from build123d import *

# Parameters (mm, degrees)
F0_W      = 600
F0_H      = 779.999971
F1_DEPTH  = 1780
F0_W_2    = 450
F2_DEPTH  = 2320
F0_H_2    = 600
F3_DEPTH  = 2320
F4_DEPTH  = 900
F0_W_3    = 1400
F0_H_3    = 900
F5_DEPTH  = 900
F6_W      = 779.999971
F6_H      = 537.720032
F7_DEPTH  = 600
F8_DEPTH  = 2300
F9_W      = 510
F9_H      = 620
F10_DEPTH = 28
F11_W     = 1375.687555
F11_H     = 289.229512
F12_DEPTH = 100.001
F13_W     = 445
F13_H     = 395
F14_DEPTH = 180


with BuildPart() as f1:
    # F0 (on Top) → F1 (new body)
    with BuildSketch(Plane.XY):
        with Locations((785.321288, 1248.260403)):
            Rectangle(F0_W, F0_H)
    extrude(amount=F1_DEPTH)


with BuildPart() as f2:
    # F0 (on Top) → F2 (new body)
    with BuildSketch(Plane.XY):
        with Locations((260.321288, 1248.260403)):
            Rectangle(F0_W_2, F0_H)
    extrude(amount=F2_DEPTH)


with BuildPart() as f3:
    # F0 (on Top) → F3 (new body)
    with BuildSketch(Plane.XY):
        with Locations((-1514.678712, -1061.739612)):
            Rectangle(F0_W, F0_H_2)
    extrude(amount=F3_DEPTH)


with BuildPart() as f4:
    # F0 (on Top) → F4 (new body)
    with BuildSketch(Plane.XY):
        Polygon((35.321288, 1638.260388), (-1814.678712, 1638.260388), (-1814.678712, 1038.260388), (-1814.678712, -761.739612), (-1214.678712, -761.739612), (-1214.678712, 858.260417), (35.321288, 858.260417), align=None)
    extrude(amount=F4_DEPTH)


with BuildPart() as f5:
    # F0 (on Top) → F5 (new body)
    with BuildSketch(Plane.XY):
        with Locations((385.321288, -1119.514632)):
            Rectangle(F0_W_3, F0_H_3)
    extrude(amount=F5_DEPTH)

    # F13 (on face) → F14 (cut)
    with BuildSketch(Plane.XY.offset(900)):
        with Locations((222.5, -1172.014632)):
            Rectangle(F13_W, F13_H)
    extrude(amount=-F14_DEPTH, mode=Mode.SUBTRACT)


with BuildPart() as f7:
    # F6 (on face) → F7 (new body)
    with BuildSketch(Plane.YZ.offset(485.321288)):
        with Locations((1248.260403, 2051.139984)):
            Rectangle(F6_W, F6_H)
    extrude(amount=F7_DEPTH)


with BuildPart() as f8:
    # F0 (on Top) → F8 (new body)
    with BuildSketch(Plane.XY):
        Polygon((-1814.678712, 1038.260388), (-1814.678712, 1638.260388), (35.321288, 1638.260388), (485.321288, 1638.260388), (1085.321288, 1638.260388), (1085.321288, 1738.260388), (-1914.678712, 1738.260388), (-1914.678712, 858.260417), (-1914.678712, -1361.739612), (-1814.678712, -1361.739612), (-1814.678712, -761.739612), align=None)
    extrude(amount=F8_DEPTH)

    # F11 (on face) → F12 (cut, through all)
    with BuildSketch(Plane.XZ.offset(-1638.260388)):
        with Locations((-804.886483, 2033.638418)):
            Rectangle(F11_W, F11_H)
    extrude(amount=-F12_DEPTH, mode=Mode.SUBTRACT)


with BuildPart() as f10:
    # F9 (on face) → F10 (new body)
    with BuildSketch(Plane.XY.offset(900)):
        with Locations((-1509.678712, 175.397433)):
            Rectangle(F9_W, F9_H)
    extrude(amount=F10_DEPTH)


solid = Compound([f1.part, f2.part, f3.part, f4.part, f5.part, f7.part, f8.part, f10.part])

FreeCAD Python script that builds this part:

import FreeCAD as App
import Part
import Sketcher
from FreeCAD import Vector
Q = App.Units.Quantity

doc = App.newDocument("Part")
body = doc.addObject("PartDesign::Body", "Body")

sketch1 = doc.addObject("Sketcher::SketchObject", "Sketch")
body.addObject(sketch1)
sketch1.AttachmentSupport = (doc.XY_Plane, [""])
sketch1.MapMode = "FlatFace"
sketch1.addGeometry(Part.LineSegment(Vector(485, 1638, 0), Vector(485, 858, 0)), False)
sketch1.addGeometry(Part.LineSegment(Vector(485, 858, 0), Vector(1085, 858, 0)), False)
sketch1.addGeometry(Part.LineSegment(Vector(1085, 858, 0), Vector(1085, 1638, 0)), False)
sketch1.addGeometry(Part.LineSegment(Vector(1085, 1638, 0), Vector(485, 1638, 0)), False)
sketch1.addConstraint(Sketcher.Constraint("Coincident", 0, 2, 1, 1))
sketch1.addConstraint(Sketcher.Constraint("Coincident", 1, 2, 2, 1))
sketch1.addConstraint(Sketcher.Constraint("Coincident", 2, 2, 3, 1))
sketch1.addConstraint(Sketcher.Constraint("Coincident", 3, 2, 0, 1))
sketch1.addConstraint(Sketcher.Constraint("Vertical", 0))
sketch1.addConstraint(Sketcher.Constraint("Horizontal", 1))
sketch1.addConstraint(Sketcher.Constraint("Vertical", 2))
sketch1.addConstraint(Sketcher.Constraint("Horizontal", 3))
sketch1.addConstraint(Sketcher.Constraint("DistanceX", 1, 1, 1, 2, Q("600 mm")))
sketch1.addConstraint(Sketcher.Constraint("DistanceY", 0, 2, 0, 1, Q("779.999971 mm")))
sketch1.addConstraint(Sketcher.Constraint("DistanceX", -1, 1, 0, 2, Q("485.321288 mm")))
sketch1.addConstraint(Sketcher.Constraint("DistanceY", -1, 1, 2, 2, Q("1638.260389 mm")))
pad1 = doc.addObject("PartDesign::Pad", "Pad")
body.addObject(pad1)
pad1.Profile = sketch1
pad1.Length = 1780
body2 = doc.addObject("PartDesign::Body", "Body001")

sketch2 = doc.addObject("Sketcher::SketchObject", "Sketch001")
body2.addObject(sketch2)
sketch2.AttachmentSupport = (doc.getObject("XY_Plane001"), [""])
sketch2.MapMode = "FlatFace"
sketch2.addGeometry(Part.LineSegment(Vector(35, 1638, 0), Vector(35, 858, 0)), False)
sketch2.addGeometry(Part.LineSegment(Vector(35, 858, 0), Vector(485, 858, 0)), False)
sketch2.addGeometry(Part.LineSegment(Vector(485, 858, 0), Vector(485, 1638, 0)), False)
sketch2.addGeometry(Part.LineSegment(Vector(485, 1638, 0), Vector(35, 1638, 0)), False)
sketch2.addConstraint(Sketcher.Constraint("Coincident", 0, 2, 1, 1))
sketch2.addConstraint(Sketcher.Constraint("Coincident", 1, 2, 2, 1))
sketch2.addConstraint(Sketcher.Constraint("Coincident", 2, 2, 3, 1))
sketch2.addConstraint(Sketcher.Constraint("Coincident", 3, 2, 0, 1))
sketch2.addConstraint(Sketcher.Constraint("Vertical", 0))
sketch2.addConstraint(Sketcher.Constraint("Horizontal", 1))
sketch2.addConstraint(Sketcher.Constraint("Vertical", 2))
sketch2.addConstraint(Sketcher.Constraint("Horizontal", 3))
sketch2.addConstraint(Sketcher.Constraint("DistanceX", 1, 1, 1, 2, Q("450 mm")))
sketch2.addConstraint(Sketcher.Constraint("DistanceY", 0, 2, 0, 1, Q("779.999971 mm")))
sketch2.addConstraint(Sketcher.Constraint("DistanceX", -1, 1, 0, 2, Q("35.321288 mm")))
sketch2.addConstraint(Sketcher.Constraint("DistanceY", -1, 1, 2, 2, Q("1638.260389 mm")))
pad2 = doc.addObject("PartDesign::Pad", "Pad001")
body2.addObject(pad2)
pad2.Profile = sketch2
pad2.Length = 2320
body3 = doc.addObject("PartDesign::Body", "Body002")

sketch3 = doc.addObject("Sketcher::SketchObject", "Sketch002")
body3.addObject(sketch3)
sketch3.AttachmentSupport = (doc.getObject("XY_Plane002"), [""])
sketch3.MapMode = "FlatFace"
sketch3.addGeometry(Part.LineSegment(Vector(-1815, -762, 0), Vector(-1815, -1362, 0)), False)
sketch3.addGeometry(Part.LineSegment(Vector(-1815, -1362, 0), Vector(-1215, -1362, 0)), False)
sketch3.addGeometry(Part.LineSegment(Vector(-1215, -1362, 0), Vector(-1215, -762, 0)), False)
sketch3.addGeometry(Part.LineSegment(Vector(-1215, -762, 0), Vector(-1815, -762, 0)), False)
sketch3.addConstraint(Sketcher.Constraint("Coincident", 0, 2, 1, 1))
sketch3.addConstraint(Sketcher.Constraint("Coincident", 1, 2, 2, 1))
sketch3.addConstraint(Sketcher.Constraint("Coincident", 2, 2, 3, 1))
sketch3.addConstraint(Sketcher.Constraint("Coincident", 3, 2, 0, 1))
sketch3.addConstraint(Sketcher.Constraint("Vertical", 0))
sketch3.addConstraint(Sketcher.Constraint("Horizontal", 1))
sketch3.addConstraint(Sketcher.Constraint("Vertical", 2))
sketch3.addConstraint(Sketcher.Constraint("Horizontal", 3))
sketch3.addConstraint(Sketcher.Constraint("Equal", 3, 0))
sketch3.addConstraint(Sketcher.Constraint("DistanceX", 1, 1, 1, 2, Q("600 mm")))
sketch3.addConstraint(Sketcher.Constraint("DistanceX", 0, 2, -1, 1, Q("1814.678712 mm")))
sketch3.addConstraint(Sketcher.Constraint("DistanceY", 0, 2, -1, 1, Q("1361.739612 mm")))
pad3 = doc.addObject("PartDesign::Pad", "Pad002")
body3.addObject(pad3)
pad3.Profile = sketch3
pad3.Length = 2320
body4 = doc.addObject("PartDesign::Body", "Body003")

sketch4 = doc.addObject("Sketcher::SketchObject", "Sketch003")
body4.addObject(sketch4)
sketch4.AttachmentSupport = (doc.getObject("XY_Plane003"), [""])
sketch4.MapMode = "FlatFace"
sketch4.addGeometry(Part.LineSegment(Vector(35, 1638, 0), Vector(-1815, 1638, 0)), False)
sketch4.addGeometry(Part.LineSegment(Vector(-1815, 1638, 0), Vector(-1815, -762, 0)), False)
sketch4.addGeometry(Part.LineSegment(Vector(-1815, -762, 0), Vector(-1215, -762, 0)), False)
sketch4.addGeometry(Part.LineSegment(Vector(-1215, -762, 0), Vector(-1215, 858, 0)), False)
sketch4.addGeometry(Part.LineSegment(Vector(-1215, 858, 0), Vector(35, 858, 0)), False)
sketch4.addGeometry(Part.LineSegment(Vector(35, 858, 0), Vector(35, 1638, 0)), False)
sketch4.addConstraint(Sketcher.Constraint("Coincident", 0, 2, 1, 1))
sketch4.addConstraint(Sketcher.Constraint("Coincident", 1, 2, 2, 1))
sketch4.addConstraint(Sketcher.Constraint("Coincident", 2, 2, 3, 1))
sketch4.addConstraint(Sketcher.Constraint("Coincident", 3, 2, 4, 1))
sketch4.addConstraint(Sketcher.Constraint("Coincident", 4, 2, 5, 1))
sketch4.addConstraint(Sketcher.Constraint("Coincident", 5, 2, 0, 1))
sketch4.addConstraint(Sketcher.Constraint("Horizontal", 0))
sketch4.addConstraint(Sketcher.Constraint("Vertical", 1))
sketch4.addConstraint(Sketcher.Constraint("Horizontal", 2))
sketch4.addConstraint(Sketcher.Constraint("Vertical", 3))
sketch4.addConstraint(Sketcher.Constraint("Horizontal", 4))
sketch4.addConstraint(Sketcher.Constraint("Vertical", 5))
sketch4.addConstraint(Sketcher.Constraint("DistanceX", 0, 2, 0, 1, Q("1850 mm")))
sketch4.addConstraint(Sketcher.Constraint("DistanceX", 2, 1, 2, 2, Q("600 mm")))
sketch4.addConstraint(Sketcher.Constraint("DistanceY", 1, 2, 1, 1, Q("2400 mm")))
sketch4.addConstraint(Sketcher.Constraint("DistanceY", 3, 1, 3, 2, Q("1620.000029 mm")))
sketch4.addConstraint(Sketcher.Constraint("DistanceX", 0, 2, -1, 1, Q("1814.678712 mm")))
sketch4.addConstraint(Sketcher.Constraint("DistanceY", -1, 1, 0, 2, Q("1638.260388 mm")))
pad4 = doc.addObject("PartDesign::Pad", "Pad003")
body4.addObject(pad4)
pad4.Profile = sketch4
pad4.Length = 900
body5 = doc.addObject("PartDesign::Body", "Body004")

sketch5 = doc.addObject("Sketcher::SketchObject", "Sketch004")
body5.addObject(sketch5)
sketch5.AttachmentSupport = (doc.getObject("XY_Plane004"), [""])
sketch5.MapMode = "FlatFace"
sketch5.addGeometry(Part.LineSegment(Vector(-315, -670, 0), Vector(-315, -1570, 0)), False)
sketch5.addGeometry(Part.LineSegment(Vector(-315, -1570, 0), Vector(1085, -1570, 0)), False)
sketch5.addGeometry(Part.LineSegment(Vector(1085, -1570, 0), Vector(1085, -670, 0)), False)
sketch5.addGeometry(Part.LineSegment(Vector(1085, -670, 0), Vector(-315, -670, 0)), False)
sketch5.addConstraint(Sketcher.Constraint("Coincident", 0, 2, 1, 1))
sketch5.addConstraint(Sketcher.Constraint("Coincident", 1, 2, 2, 1))
sketch5.addConstraint(Sketcher.Constraint("Coincident", 2, 2, 3, 1))
sketch5.addConstraint(Sketcher.Constraint("Coincident", 3, 2, 0, 1))
sketch5.addConstraint(Sketcher.Constraint("Vertical", 0))
sketch5.addConstraint(Sketcher.Constraint("Horizontal", 1))
sketch5.addConstraint(Sketcher.Constraint("Vertical", 2))
sketch5.addConstraint(Sketcher.Constraint("Horizontal", 3))
sketch5.addConstraint(Sketcher.Constraint("DistanceX", 1, 1, 1, 2, Q("1400 mm")))
sketch5.addConstraint(Sketcher.Constraint("DistanceY", 0, 2, 0, 1, Q("900 mm")))
sketch5.addConstraint(Sketcher.Constraint("DistanceX", 0, 2, -1, 1, Q("314.678712 mm")))
sketch5.addConstraint(Sketcher.Constraint("DistanceY", 0, 2, -1, 1, Q("1569.514632 mm")))
pad5 = doc.addObject("PartDesign::Pad", "Pad004")
body5.addObject(pad5)
pad5.Profile = sketch5
pad5.Length = 900

sketch6 = doc.addObject("Sketcher::SketchObject", "Sketch005")
body5.addObject(sketch6)
sketch6.AttachmentSupport = (doc.getObject("XY_Plane004"), [""])
sketch6.MapMode = "FlatFace"
sketch6.AttachmentOffset = App.Placement(Vector(0, 0, 900), App.Rotation())
sketch6.addGeometry(Part.LineSegment(Vector(0, -975, 0), Vector(0, -1370, 0)), False)
sketch6.addGeometry(Part.LineSegment(Vector(0, -1370, 0), Vector(445, -1370, 0)), False)
sketch6.addGeometry(Part.LineSegment(Vector(445, -1370, 0), Vector(445, -975, 0)), False)
sketch6.addGeometry(Part.LineSegment(Vector(445, -975, 0), Vector(0, -975, 0)), False)
sketch6.addConstraint(Sketcher.Constraint("Coincident", 0, 2, 1, 1))
sketch6.addConstraint(Sketcher.Constraint("Coincident", 1, 2, 2, 1))
sketch6.addConstraint(Sketcher.Constraint("Coincident", 2, 2, 3, 1))
sketch6.addConstraint(Sketcher.Constraint("Coincident", 3, 2, 0, 1))
sketch6.addConstraint(Sketcher.Constraint("Vertical", 0))
sketch6.addConstraint(Sketcher.Constraint("Horizontal", 1))
sketch6.addConstraint(Sketcher.Constraint("Vertical", 2))
sketch6.addConstraint(Sketcher.Constraint("Horizontal", 3))
sketch6.addConstraint(Sketcher.Constraint("PointOnObject", 0, 2, -2))
sketch6.addConstraint(Sketcher.Constraint("DistanceX", 1, 1, 1, 2, Q("445 mm")))
sketch6.addConstraint(Sketcher.Constraint("DistanceY", 0, 2, 0, 1, Q("395 mm")))
sketch6.addConstraint(Sketcher.Constraint("DistanceY", 0, 2, -1, 1, Q("1369.514632 mm")))
pocket1 = doc.addObject("PartDesign::Pocket", "Pocket")
body5.addObject(pocket1)
pocket1.Profile = sketch6
pocket1.Length = 180
body6 = doc.addObject("PartDesign::Body", "Body005")

sketch7 = doc.addObject("Sketcher::SketchObject", "Sketch006")
body6.addObject(sketch7)
sketch7.AttachmentSupport = (doc.getObject("YZ_Plane005"), [""])
sketch7.MapMode = "FlatFace"
sketch7.AttachmentOffset = App.Placement(Vector(0, 0, 485.321288), App.Rotation())
sketch7.addGeometry(Part.LineSegment(Vector(858, 2320, 0), Vector(858, 1782, 0)), False)
sketch7.addGeometry(Part.LineSegment(Vector(858, 1782, 0), Vector(1638, 1782, 0)), False)
sketch7.addGeometry(Part.LineSegment(Vector(1638, 1782, 0), Vector(1638, 2320, 0)), False)
sketch7.addGeometry(Part.LineSegment(Vector(1638, 2320, 0), Vector(858, 2320, 0)), False)
sketch7.addConstraint(Sketcher.Constraint("Coincident", 0, 2, 1, 1))
sketch7.addConstraint(Sketcher.Constraint("Coincident", 1, 2, 2, 1))
sketch7.addConstraint(Sketcher.Constraint("Coincident", 2, 2, 3, 1))
sketch7.addConstraint(Sketcher.Constraint("Coincident", 3, 2, 0, 1))
sketch7.addConstraint(Sketcher.Constraint("Vertical", 0))
sketch7.addConstraint(Sketcher.Constraint("Horizontal", 1))
sketch7.addConstraint(Sketcher.Constraint("Vertical", 2))
sketch7.addConstraint(Sketcher.Constraint("Horizontal", 3))
sketch7.addConstraint(Sketcher.Constraint("DistanceY", -1, 1, 2, 2, Q("2320 mm")))
sketch7.addConstraint(Sketcher.Constraint("DistanceX", 1, 1, 1, 2, Q("779.999971 mm")))
sketch7.addConstraint(Sketcher.Constraint("DistanceY", 0, 2, 0, 1, Q("537.720032 mm")))
sketch7.addConstraint(Sketcher.Constraint("DistanceX", -1, 1, 1, 2, Q("1638.260389 mm")))
pad6 = doc.addObject("PartDesign::Pad", "Pad005")
body6.addObject(pad6)
pad6.Profile = sketch7
pad6.Length = 600
body7 = doc.addObject("PartDesign::Body", "Body006")

sketch8 = doc.addObject("Sketcher::SketchObject", "Sketch007")
body7.addObject(sketch8)
sketch8.AttachmentSupport = (doc.getObject("XY_Plane006"), [""])
sketch8.MapMode = "FlatFace"
sketch8.addGeometry(Part.LineSegment(Vector(-1815, 1638, 0), Vector(1085, 1638, 0)), False)
sketch8.addGeometry(Part.LineSegment(Vector(1085, 1638, 0), Vector(1085, 1738, 0)), False)
sketch8.addGeometry(Part.LineSegment(Vector(1085, 1738, 0), Vector(-1915, 1738, 0)), False)
sketch8.addGeometry(Part.LineSegment(Vector(-1915, 1738, 0), Vector(-1915, -1362, 0)), False)
sketch8.addGeometry(Part.LineSegment(Vector(-1915, -1362, 0), Vector(-1815, -1362, 0)), False)
sketch8.addGeometry(Part.LineSegment(Vector(-1815, -1362, 0), Vector(-1815, 1638, 0)), False)
sketch8.addConstraint(Sketcher.Constraint("Coincident", 0, 2, 1, 1))
sketch8.addConstraint(Sketcher.Constraint("Coincident", 1, 2, 2, 1))
sketch8.addConstraint(Sketcher.Constraint("Coincident", 2, 2, 3, 1))
sketch8.addConstraint(Sketcher.Constraint("Coincident", 3, 2, 4, 1))
sketch8.addConstraint(Sketcher.Constraint("Coincident", 4, 2, 5, 1))
sketch8.addConstraint(Sketcher.Constraint("Coincident", 5, 2, 0, 1))
sketch8.addConstraint(Sketcher.Constraint("Horizontal", 0))
sketch8.addConstraint(Sketcher.Constraint("Vertical", 1))
sketch8.addConstraint(Sketcher.Constraint("Horizontal", 2))
sketch8.addConstraint(Sketcher.Constraint("Vertical", 3))
sketch8.addConstraint(Sketcher.Constraint("Horizontal", 4))
sketch8.addConstraint(Sketcher.Constraint("Vertical", 5))
sketch8.addConstraint(Sketcher.Constraint("Equal", 4, 1))
sketch8.addConstraint(Sketcher.Constraint("Equal", 2, 5))
sketch8.addConstraint(Sketcher.Constraint("DistanceX", 0, 1, 0, 2, Q("2900 mm")))
sketch8.addConstraint(Sketcher.Constraint("DistanceX", 2, 2, 2, 1, Q("3000 mm")))
sketch8.addConstraint(Sketcher.Constraint("DistanceX", -1, 1, 0, 2, Q("1085.321288 mm")))
sketch8.addConstraint(Sketcher.Constraint("DistanceY", -1, 1, 0, 2, Q("1638.260388 mm")))
pad7 = doc.addObject("PartDesign::Pad", "Pad006")
body7.addObject(pad7)
pad7.Profile = sketch8
pad7.Length = 2300

sketch9 = doc.addObject("Sketcher::SketchObject", "Sketch008")
body7.addObject(sketch9)
sketch9.AttachmentSupport = (doc.getObject("XZ_Plane006"), [""])
sketch9.MapMode = "FlatFace"
sketch9.AttachmentOffset = App.Placement(Vector(0, 0, -1638.260388), App.Rotation())
sketch9.addGeometry(Part.LineSegment(Vector(-1493, 2178, 0), Vector(-1493, 1889, 0)), False)
sketch9.addGeometry(Part.LineSegment(Vector(-1493, 1889, 0), Vector(-117, 1889, 0)), False)
sketch9.addGeometry(Part.LineSegment(Vector(-117, 1889, 0), Vector(-117, 2178, 0)), False)
sketch9.addGeometry(Part.LineSegment(Vector(-117, 2178, 0), Vector(-1493, 2178, 0)), False)
sketch9.addConstraint(Sketcher.Constraint("Coincident", 0, 2, 1, 1))
sketch9.addConstraint(Sketcher.Constraint("Coincident", 1, 2, 2, 1))
sketch9.addConstraint(Sketcher.Constraint("Coincident", 2, 2, 3, 1))
sketch9.addConstraint(Sketcher.Constraint("Coincident", 3, 2, 0, 1))
sketch9.addConstraint(Sketcher.Constraint("Vertical", 0))
sketch9.addConstraint(Sketcher.Constraint("Horizontal", 1))
sketch9.addConstraint(Sketcher.Constraint("Vertical", 2))
sketch9.addConstraint(Sketcher.Constraint("Horizontal", 3))
sketch9.addConstraint(Sketcher.Constraint("DistanceY", 0, 2, 0, 1, Q("289.229512 mm")))
sketch9.addConstraint(Sketcher.Constraint("DistanceX", 1, 1, 1, 2, Q("1375.687555 mm")))
sketch9.addConstraint(Sketcher.Constraint("DistanceX", 0, 2, -1, 1, Q("1492.73026 mm")))
sketch9.addConstraint(Sketcher.Constraint("DistanceY", -1, 1, 0, 2, Q("1889.023662 mm")))
pocket2 = doc.addObject("PartDesign::Pocket", "Pocket001")
body7.addObject(pocket2)
pocket2.Profile = sketch9
pocket2.Type = "ThroughAll"
body8 = doc.addObject("PartDesign::Body", "Body007")

sketch10 = doc.addObject("Sketcher::SketchObject", "Sketch009")
body8.addObject(sketch10)
sketch10.AttachmentSupport = (doc.getObject("XY_Plane007"), [""])
sketch10.MapMode = "FlatFace"
sketch10.AttachmentOffset = App.Placement(Vector(0, 0, 900), App.Rotation())
sketch10.addGeometry(Part.LineSegment(Vector(-1765, 485, 0), Vector(-1765, -135, 0)), False)
sketch10.addGeometry(Part.LineSegment(Vector(-1765, -135, 0), Vector(-1255, -135, 0)), False)
sketch10.addGeometry(Part.LineSegment(Vector(-1255, -135, 0), Vector(-1255, 485, 0)), False)
sketch10.addGeometry(Part.LineSegment(Vector(-1255, 485, 0), Vector(-1765, 485, 0)), False)
sketch10.addConstraint(Sketcher.Constraint("Coincident", 0, 2, 1, 1))
sketch10.addConstraint(Sketcher.Constraint("Coincident", 1, 2, 2, 1))
sketch10.addConstraint(Sketcher.Constraint("Coincident", 2, 2, 3, 1))
sketch10.addConstraint(Sketcher.Constraint("Coincident", 3, 2, 0, 1))
sketch10.addConstraint(Sketcher.Constraint("Vertical", 0))
sketch10.addConstraint(Sketcher.Constraint("Horizontal", 1))
sketch10.addConstraint(Sketcher.Constraint("Vertical", 2))
sketch10.addConstraint(Sketcher.Constraint("Horizontal", 3))
sketch10.addConstraint(Sketcher.Constraint("DistanceX", 1, 1, 1, 2, Q("510 mm")))
sketch10.addConstraint(Sketcher.Constraint("DistanceY", 0, 2, 0, 1, Q("620 mm")))
sketch10.addConstraint(Sketcher.Constraint("DistanceX", 0, 2, -1, 1, Q("1764.678712 mm")))
sketch10.addConstraint(Sketcher.Constraint("DistanceY", 0, 2, -1, 1, Q("134.602567 mm")))
pad8 = doc.addObject("PartDesign::Pad", "Pad007")
body8.addObject(pad8)
pad8.Profile = sketch10
pad8.Length = 28

doc.recompute()
